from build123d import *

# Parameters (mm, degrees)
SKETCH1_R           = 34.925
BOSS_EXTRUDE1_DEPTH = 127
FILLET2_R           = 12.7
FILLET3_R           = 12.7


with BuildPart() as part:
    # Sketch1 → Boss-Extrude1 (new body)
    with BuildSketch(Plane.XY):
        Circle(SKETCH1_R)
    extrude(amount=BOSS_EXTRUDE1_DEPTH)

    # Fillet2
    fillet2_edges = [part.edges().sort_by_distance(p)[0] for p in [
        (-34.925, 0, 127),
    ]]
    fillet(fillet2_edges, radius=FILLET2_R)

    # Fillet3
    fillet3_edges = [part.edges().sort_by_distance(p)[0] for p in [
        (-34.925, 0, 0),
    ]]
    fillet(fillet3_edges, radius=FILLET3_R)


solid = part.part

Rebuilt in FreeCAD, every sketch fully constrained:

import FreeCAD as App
import Part
import Sketcher

V = App.Vector
Q = App.Units.Quantity


def edges_at(feature, points):
    """Names of the edges that pass closest to the given points."""
    edges = feature.Shape.Edges
    near = lambda p: min(range(len(edges)), key=lambda i: edges[i].distToShape(Part.Vertex(*p))[0])
    return sorted({f"Edge{near(p) + 1}" for p in points})

doc = App.newDocument("Part")
body = doc.addObject("PartDesign::Body", "Body")

# Sketch on XY plane
sketch1 = body.newObject("Sketcher::SketchObject", "Sketch")
sketch1.AttachmentSupport = (doc.getObject("XY_Plane"), [""])
sketch1.MapMode = "FlatFace"
sketch1.addGeometry(Part.Circle(V(0, 0, 0), V(0, 0, 1), 35), False)
sketch1.addConstraint([
    Sketcher.Constraint("Coincident", 0, 3, -1, 1),
    Sketcher.Constraint("Diameter", 0, Q("2.75 in")),
])
pad1 = body.newObject("PartDesign::Pad", "Pad")
pad1.Profile = sketch1
pad1.Length = Q("5 in")
doc.recompute()

fillet = body.newObject("PartDesign::Fillet", "Fillet")
fillet.Base = (pad1, edges_at(pad1, [(-34.925, 0, 127)]))
fillet.Radius = Q("0.5 in")
doc.recompute()

fillet2 = body.newObject("PartDesign::Fillet", "Fillet001")
fillet2.Base = (fillet, edges_at(fillet, [(-34.925, 0, 0)]))
fillet2.Radius = Q("0.5 in")

doc.recompute()
